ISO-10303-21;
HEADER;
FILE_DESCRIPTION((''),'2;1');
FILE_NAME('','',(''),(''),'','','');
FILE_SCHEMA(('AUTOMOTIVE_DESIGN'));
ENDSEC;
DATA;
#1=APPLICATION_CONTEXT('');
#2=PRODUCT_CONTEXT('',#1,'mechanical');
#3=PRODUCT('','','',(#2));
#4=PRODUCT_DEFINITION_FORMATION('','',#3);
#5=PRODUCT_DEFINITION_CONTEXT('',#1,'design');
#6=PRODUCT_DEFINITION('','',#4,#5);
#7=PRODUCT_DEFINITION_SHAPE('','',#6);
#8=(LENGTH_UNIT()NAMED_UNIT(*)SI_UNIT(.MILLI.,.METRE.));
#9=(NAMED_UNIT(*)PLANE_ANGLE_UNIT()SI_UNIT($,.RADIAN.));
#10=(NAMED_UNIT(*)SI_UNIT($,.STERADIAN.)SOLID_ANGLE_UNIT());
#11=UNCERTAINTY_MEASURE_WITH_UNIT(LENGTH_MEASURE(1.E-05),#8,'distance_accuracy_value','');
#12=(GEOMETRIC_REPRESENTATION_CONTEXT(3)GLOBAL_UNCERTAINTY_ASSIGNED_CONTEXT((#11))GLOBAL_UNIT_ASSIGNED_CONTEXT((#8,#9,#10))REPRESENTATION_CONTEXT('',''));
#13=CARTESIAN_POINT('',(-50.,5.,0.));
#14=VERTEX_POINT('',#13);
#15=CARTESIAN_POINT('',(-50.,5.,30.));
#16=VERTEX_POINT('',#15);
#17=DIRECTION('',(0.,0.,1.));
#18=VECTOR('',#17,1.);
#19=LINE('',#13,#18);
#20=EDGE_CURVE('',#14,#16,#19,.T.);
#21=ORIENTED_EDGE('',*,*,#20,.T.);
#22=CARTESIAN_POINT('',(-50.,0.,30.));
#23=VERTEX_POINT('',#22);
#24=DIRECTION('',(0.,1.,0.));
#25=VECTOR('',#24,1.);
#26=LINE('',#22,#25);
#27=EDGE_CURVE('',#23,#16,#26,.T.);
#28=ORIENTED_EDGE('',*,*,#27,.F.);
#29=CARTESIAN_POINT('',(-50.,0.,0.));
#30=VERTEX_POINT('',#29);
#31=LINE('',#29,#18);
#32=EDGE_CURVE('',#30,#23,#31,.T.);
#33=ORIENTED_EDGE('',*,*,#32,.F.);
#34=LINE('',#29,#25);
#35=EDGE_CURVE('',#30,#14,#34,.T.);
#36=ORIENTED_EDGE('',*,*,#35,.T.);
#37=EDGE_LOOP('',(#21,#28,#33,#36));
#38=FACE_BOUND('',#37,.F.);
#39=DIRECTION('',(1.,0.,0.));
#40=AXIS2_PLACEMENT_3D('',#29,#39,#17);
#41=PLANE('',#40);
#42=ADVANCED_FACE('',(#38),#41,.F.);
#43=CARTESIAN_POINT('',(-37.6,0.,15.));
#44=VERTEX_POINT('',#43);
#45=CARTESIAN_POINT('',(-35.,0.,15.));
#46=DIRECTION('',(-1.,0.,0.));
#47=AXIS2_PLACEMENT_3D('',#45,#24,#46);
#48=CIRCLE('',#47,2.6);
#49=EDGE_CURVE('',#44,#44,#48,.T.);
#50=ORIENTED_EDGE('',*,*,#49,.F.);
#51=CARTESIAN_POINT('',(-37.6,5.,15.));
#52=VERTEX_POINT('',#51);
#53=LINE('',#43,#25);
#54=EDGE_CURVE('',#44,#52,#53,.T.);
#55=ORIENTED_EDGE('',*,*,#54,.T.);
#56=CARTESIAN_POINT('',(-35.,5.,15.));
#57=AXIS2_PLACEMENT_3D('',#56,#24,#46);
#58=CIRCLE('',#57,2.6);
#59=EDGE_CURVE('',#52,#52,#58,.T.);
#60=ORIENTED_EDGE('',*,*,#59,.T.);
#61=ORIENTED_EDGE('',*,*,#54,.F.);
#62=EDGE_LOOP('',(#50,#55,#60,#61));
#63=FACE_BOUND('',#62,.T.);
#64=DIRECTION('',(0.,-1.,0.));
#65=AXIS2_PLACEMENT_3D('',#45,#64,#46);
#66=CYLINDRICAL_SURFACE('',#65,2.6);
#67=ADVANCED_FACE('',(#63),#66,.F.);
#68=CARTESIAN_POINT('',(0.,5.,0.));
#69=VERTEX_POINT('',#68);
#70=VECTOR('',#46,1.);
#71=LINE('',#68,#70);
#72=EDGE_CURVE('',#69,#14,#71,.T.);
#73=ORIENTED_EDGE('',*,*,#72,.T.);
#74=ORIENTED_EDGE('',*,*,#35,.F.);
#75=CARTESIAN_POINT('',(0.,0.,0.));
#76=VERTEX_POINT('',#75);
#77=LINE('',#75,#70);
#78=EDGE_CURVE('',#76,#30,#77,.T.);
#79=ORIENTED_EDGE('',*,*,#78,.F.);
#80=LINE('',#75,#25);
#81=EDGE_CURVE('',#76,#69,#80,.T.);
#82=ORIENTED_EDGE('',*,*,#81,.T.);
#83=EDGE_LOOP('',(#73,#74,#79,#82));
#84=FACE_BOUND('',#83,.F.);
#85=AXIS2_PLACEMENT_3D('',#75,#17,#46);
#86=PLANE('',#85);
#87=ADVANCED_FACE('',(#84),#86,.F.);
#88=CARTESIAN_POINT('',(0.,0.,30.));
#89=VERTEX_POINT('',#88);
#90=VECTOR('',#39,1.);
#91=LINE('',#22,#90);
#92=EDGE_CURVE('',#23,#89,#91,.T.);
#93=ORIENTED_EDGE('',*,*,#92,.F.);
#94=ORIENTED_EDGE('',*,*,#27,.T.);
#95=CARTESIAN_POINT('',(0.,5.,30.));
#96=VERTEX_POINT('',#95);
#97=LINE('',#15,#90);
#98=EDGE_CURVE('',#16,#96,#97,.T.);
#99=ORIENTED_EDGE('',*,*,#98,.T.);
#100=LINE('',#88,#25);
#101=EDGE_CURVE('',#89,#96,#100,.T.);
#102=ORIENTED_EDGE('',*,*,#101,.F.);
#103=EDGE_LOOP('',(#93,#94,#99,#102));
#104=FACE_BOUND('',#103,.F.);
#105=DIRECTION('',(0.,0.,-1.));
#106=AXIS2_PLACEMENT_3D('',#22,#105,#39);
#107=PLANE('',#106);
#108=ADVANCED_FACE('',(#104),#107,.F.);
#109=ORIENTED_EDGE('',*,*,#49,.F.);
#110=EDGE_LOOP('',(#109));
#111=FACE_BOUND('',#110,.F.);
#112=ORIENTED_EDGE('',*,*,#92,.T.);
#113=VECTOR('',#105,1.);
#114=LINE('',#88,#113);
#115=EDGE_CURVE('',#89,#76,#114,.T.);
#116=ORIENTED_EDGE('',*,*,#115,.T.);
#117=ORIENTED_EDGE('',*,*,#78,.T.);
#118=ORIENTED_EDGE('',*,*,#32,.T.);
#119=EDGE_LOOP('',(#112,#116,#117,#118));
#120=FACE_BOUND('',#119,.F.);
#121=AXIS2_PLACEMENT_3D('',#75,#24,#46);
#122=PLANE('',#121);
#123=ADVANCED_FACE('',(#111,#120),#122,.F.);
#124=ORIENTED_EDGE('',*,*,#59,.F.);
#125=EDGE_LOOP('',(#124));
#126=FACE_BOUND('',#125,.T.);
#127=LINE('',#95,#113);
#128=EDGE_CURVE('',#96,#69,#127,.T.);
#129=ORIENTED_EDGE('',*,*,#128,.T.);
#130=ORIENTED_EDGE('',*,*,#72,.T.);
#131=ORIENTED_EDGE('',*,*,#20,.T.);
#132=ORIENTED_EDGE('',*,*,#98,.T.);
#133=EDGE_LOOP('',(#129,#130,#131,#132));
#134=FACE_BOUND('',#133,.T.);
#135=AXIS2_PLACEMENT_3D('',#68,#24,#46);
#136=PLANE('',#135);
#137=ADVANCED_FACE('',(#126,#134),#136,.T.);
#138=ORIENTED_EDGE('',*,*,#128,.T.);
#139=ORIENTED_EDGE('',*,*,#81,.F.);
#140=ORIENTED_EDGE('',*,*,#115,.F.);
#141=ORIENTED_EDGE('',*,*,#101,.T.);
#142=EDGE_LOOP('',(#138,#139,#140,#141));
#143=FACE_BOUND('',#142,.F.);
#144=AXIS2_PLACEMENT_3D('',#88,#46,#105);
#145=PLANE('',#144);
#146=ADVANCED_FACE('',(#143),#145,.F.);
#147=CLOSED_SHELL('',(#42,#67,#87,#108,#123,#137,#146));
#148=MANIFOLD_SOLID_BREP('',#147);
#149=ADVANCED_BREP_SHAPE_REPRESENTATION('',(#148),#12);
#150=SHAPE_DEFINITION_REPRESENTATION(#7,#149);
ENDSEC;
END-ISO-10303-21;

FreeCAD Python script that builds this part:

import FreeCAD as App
import Part
import Sketcher

V = App.Vector
Q = App.Units.Quantity

doc = App.newDocument("Part")
body = doc.addObject("PartDesign::Body", "Body")

sketch1 = doc.addObject("Sketcher::SketchObject", "Sketch")
body.addObject(sketch1)
sketch1.AttachmentSupport = (doc.XZ_Plane, [""])
sketch1.MapMode = "FlatFace"
sketch1.addGeometry(Part.LineSegment(V(0, 30, 0), V(0, 0, 0)), False)
sketch1.addGeometry(Part.LineSegment(V(0, 0, 0), V(-50, 0, 0)), False)
sketch1.addGeometry(Part.LineSegment(V(-50, 0, 0), V(-50, 30, 0)), False)
sketch1.addGeometry(Part.LineSegment(V(-50, 30, 0), V(0, 30, 0)), False)
sketch1.addGeometry(Part.Circle(V(-35, 15, 0), V(0, 0, 1), 2.6), False)
sketch1.addConstraint(Sketcher.Constraint("Coincident", 0, 2, 1, 1))
sketch1.addConstraint(Sketcher.Constraint("Coincident", 1, 2, 2, 1))
sketch1.addConstraint(Sketcher.Constraint("Coincident", 2, 2, 3, 1))
sketch1.addConstraint(Sketcher.Constraint("Coincident", 3, 2, 0, 1))
sketch1.addConstraint(Sketcher.Constraint("Vertical", 0))
sketch1.addConstraint(Sketcher.Constraint("Horizontal", 1))
sketch1.addConstraint(Sketcher.Constraint("Vertical", 2))
sketch1.addConstraint(Sketcher.Constraint("Horizontal", 3))
sketch1.addConstraint(Sketcher.Constraint("Coincident", 0, 2, -1, 1))
sketch1.addConstraint(Sketcher.Constraint("Diameter", 4, Q("5.2 mm")))
sketch1.addConstraint(Sketcher.Constraint("DistanceX", 1, 2, 1, 1, Q("50 mm")))
sketch1.addConstraint(Sketcher.Constraint("DistanceY", 0, 2, 0, 1, Q("30 mm")))
sketch1.addConstraint(Sketcher.Constraint("DistanceY", -1, 1, 4, 3, Q("15 mm")))
sketch1.addConstraint(Sketcher.Constraint("DistanceX", 1, 2, 4, 3, Q("15 mm")))
pad1 = doc.addObject("PartDesign::Pad", "Pad")
body.addObject(pad1)
pad1.Profile = sketch1
pad1.Length = 5
pad1.Reversed = True

doc.recompute()
